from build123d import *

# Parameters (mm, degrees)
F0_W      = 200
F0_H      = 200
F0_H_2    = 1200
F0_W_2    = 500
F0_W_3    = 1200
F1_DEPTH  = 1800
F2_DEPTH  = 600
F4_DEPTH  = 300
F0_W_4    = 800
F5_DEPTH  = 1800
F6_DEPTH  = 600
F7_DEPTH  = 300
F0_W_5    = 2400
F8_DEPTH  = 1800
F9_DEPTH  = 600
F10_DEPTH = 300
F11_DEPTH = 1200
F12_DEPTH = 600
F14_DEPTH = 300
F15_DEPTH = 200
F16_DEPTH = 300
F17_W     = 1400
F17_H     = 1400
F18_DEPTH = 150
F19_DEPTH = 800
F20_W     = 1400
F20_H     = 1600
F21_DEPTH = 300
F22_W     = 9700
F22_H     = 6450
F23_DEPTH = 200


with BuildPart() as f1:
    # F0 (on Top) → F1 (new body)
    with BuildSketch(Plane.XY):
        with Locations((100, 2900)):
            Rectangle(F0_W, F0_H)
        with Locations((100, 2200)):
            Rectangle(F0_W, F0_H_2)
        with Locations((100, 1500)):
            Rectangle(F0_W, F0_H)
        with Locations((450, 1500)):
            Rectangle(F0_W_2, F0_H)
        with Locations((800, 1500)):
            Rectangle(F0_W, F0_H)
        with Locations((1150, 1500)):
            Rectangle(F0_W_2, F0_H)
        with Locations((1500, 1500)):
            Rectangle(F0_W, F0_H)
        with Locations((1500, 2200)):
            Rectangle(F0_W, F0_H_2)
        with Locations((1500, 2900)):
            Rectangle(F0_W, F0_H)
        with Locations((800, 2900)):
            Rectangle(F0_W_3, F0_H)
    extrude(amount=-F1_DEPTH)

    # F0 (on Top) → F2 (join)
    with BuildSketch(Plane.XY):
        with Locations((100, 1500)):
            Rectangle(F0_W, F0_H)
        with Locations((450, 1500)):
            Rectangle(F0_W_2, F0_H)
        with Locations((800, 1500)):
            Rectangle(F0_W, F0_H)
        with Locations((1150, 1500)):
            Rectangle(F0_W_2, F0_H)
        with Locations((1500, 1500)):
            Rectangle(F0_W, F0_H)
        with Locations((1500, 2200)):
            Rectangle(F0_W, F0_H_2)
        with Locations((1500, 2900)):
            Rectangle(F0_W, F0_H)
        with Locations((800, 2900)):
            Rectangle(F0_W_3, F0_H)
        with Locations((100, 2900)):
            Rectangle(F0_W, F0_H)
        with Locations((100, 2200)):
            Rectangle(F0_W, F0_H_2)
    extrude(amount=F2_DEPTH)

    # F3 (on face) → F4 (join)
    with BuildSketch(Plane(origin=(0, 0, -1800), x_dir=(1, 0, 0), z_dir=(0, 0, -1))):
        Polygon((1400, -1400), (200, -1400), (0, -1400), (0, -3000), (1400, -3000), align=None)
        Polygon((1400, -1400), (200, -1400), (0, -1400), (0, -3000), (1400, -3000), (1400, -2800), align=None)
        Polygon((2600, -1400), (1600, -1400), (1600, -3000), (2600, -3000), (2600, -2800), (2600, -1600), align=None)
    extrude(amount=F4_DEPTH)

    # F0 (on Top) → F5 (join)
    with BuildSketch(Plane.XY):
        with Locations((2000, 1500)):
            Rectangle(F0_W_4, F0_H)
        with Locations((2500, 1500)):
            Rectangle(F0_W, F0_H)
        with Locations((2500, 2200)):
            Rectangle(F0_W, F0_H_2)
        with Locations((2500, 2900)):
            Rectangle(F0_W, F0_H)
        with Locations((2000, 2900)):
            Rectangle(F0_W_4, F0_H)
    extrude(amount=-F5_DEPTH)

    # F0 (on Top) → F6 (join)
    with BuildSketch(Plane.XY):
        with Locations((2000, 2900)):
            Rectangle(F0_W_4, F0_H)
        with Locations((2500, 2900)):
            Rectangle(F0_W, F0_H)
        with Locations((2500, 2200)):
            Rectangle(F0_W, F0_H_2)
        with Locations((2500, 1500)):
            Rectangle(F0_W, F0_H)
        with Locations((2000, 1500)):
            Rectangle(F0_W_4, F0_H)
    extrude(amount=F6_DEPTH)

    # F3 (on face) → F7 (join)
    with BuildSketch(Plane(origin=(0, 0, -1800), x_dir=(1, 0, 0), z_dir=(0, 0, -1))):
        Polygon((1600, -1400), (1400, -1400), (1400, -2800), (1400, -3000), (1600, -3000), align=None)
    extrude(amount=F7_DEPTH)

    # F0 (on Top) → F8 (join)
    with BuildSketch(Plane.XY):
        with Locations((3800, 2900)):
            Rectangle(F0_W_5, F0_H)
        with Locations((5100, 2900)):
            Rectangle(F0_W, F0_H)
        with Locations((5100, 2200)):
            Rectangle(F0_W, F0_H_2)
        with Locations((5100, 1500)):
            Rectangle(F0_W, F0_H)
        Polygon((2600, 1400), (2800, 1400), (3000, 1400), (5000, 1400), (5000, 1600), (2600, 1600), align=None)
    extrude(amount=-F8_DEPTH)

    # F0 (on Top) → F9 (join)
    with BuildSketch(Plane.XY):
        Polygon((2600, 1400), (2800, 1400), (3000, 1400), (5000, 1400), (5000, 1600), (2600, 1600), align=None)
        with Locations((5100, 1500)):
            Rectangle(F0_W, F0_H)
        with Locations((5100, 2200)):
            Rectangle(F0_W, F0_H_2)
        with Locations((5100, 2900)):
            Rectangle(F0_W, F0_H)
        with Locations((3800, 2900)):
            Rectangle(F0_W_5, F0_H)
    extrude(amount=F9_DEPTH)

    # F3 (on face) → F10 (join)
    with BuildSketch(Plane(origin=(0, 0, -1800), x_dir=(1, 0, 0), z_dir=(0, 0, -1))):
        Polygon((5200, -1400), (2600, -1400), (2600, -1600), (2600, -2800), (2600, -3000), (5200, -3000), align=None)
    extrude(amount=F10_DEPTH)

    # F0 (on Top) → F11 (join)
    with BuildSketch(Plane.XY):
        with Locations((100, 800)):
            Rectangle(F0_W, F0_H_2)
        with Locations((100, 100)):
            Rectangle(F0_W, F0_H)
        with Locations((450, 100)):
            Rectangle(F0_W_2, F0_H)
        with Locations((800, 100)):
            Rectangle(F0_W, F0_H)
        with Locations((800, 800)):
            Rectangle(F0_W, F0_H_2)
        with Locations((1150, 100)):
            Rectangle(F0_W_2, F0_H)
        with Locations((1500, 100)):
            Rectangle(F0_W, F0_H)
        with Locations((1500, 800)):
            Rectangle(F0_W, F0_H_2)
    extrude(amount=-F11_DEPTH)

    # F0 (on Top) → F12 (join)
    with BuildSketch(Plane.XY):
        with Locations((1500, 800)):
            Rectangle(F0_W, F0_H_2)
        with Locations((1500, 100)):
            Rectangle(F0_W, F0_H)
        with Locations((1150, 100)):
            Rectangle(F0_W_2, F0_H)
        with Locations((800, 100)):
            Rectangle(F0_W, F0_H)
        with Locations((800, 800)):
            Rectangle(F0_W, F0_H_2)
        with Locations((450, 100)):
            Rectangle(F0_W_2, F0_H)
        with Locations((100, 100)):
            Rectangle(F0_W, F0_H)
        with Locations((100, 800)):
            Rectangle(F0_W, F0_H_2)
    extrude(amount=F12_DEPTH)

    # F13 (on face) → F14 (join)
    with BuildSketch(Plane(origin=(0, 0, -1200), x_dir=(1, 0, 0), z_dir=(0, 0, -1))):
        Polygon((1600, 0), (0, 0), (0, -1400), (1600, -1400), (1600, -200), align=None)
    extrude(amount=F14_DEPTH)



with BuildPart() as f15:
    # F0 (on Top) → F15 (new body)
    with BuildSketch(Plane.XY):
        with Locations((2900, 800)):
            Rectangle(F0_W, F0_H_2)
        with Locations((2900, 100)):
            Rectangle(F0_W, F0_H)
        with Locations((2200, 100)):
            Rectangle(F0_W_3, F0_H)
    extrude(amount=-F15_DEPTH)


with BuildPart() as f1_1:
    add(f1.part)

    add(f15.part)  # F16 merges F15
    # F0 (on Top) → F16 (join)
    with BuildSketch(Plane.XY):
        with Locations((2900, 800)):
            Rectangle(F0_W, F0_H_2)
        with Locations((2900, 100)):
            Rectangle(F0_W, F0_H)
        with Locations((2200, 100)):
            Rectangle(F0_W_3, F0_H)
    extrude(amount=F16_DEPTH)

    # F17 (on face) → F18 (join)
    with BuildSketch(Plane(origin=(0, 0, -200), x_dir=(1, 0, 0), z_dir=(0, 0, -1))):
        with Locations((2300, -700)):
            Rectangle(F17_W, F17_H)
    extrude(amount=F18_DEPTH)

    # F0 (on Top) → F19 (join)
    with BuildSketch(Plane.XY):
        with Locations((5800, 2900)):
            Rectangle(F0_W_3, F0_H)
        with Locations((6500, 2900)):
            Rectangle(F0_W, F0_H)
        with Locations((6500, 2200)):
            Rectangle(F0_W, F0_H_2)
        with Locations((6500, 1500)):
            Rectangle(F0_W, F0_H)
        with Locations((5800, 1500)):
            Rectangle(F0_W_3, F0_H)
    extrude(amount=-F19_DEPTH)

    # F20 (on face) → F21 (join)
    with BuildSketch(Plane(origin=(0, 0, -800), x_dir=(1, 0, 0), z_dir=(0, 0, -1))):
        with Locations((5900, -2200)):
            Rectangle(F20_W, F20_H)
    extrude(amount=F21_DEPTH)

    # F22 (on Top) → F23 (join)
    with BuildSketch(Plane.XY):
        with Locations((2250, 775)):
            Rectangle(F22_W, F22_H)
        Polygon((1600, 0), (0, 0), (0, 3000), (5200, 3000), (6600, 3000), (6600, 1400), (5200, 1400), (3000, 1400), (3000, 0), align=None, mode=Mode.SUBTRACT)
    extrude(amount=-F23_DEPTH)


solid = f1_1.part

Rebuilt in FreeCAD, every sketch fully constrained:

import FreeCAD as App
import Part
import Sketcher

V = App.Vector

doc = App.newDocument("Part")
params = doc.addObject("Spreadsheet::Sheet", "Params")
for row, (alias, value) in enumerate([
    ("sketch1_width", "1600 mm"),
    ("sketch1_width2", "1200 mm"),
    ("pad1_length", "1800 mm"),
    ("sketch2_width", "1600 mm"),
    ("sketch2_width2", "1200 mm"),
    ("pad2_length", "600 mm"),
    ("sketch3_width", "1400 mm"),
    ("sketch3_width2", "1000 mm"),
    ("sketch3_height", "1600 mm"),
    ("pad3_length", "300 mm"),
    ("sketch4_width", "1000 mm"),
    ("sketch4_width2", "800 mm"),
    ("sketch4_height", "200 mm"),
    ("sketch4_height2", "1600 mm"),
    ("pad4_length", "1800 mm"),
    ("sketch5_width", "800 mm"),
    ("sketch5_width2", "1000 mm"),
    ("sketch5_height", "200 mm"),
    ("sketch5_height2", "1200 mm"),
    ("pad5_length", "600 mm"),
    ("sketch6_width", "200 mm"),
    ("sketch6_height", "1600 mm"),
    ("pad6_length", "300 mm"),
    ("sketch7_width", "2400 mm"),
    ("sketch7_width2", "2600 mm"),
    ("sketch7_height", "200 mm"),
    ("sketch7_height2", "1200 mm"),
    ("pad7_length", "1800 mm"),
    ("sketch8_width", "2600 mm"),
    ("sketch8_width2", "2400 mm"),
    ("sketch8_height", "1600 mm"),
    ("sketch8_height2", "200 mm"),
    ("pad8_length", "600 mm"),
    ("sketch9_width", "2600 mm"),
    ("sketch9_height", "1600 mm"),
    ("pad9_length", "300 mm"),
    ("sketch10_width", "1600 mm"),
    ("sketch10_width2", "200 mm"),
    ("sketch10_height", "1400 mm"),
    ("sketch10_height2", "1200 mm"),
    ("pad10_length", "1200 mm"),
    ("sketch11_width", "500 mm"),
    ("sketch11_width2", "200 mm"),
    ("sketch11_height", "1200 mm"),
    ("sketch11_height2", "1400 mm"),
    ("pad11_length", "600 mm"),
    ("sketch12_width", "1600 mm"),
    ("sketch12_height", "1400 mm"),
    ("pad12_length", "300 mm"),
    ("sketch13_width", "1200 mm"),
    ("sketch13_width2", "1400 mm"),
    ("pad13_length", "200 mm"),
    ("sketch14_width", "1200 mm"),
    ("sketch14_width2", "1400 mm"),
    ("pad14_length", "300 mm"),
    ("sketch15_width", "1400 mm"),
    ("pad15_length", "150 mm"),
    ("sketch16_width", "1200 mm"),
    ("sketch16_width2", "1400 mm"),
    ("sketch16_height", "200 mm"),
    ("pad16_length", "800 mm"),
    ("sketch17_width", "1400 mm"),
    ("sketch17_height", "1600 mm"),
    ("pad17_length", "300 mm"),
    ("sketch18_width", "9700 mm"),
    ("sketch18_width2", "3000 mm"),
    ("sketch18_width3", "6600 mm"),
    ("sketch18_height", "6450 mm"),
    ("sketch18_height2", "1600 mm"),
    ("pad18_length", "200 mm"),
], start=1):
    params.set(f"A{row}", alias)
    params.set(f"B{row}", "=" + value)
    params.setAlias(f"B{row}", alias)

body = doc.addObject("PartDesign::Body", "Body")
body.AllowCompound = True

sketch1 = body.newObject("Sketcher::SketchObject", "Sketch")
sketch1.AttachmentSupport = (doc.getObject("XY_Plane"), [""])
sketch1.MapMode = "FlatFace"
sketch1.addGeometry([
    Part.LineSegment(V(0, 3000, 0), V(0, 1400, 0)),
    Part.LineSegment(V(0, 1400, 0), V(1600, 1400, 0)),
    Part.LineSegment(V(1600, 1400, 0), V(1600, 3000, 0)),
    Part.LineSegment(V(1600, 3000, 0), V(0, 3000, 0)),
    Part.LineSegment(V(1400, 2800, 0), V(1400, 1600, 0)),
    Part.LineSegment(V(1400, 1600, 0), V(200, 1600, 0)),
    Part.LineSegment(V(200, 1600, 0), V(200, 2800, 0)),
    Part.LineSegment(V(200, 2800, 0), V(1400, 2800, 0)),
], False)
sketch1.addConstraint([
    Sketcher.Constraint("Coincident", 0, 2, 1, 1),
    Sketcher.Constraint("Coincident", 1, 2, 2, 1),
    Sketcher.Constraint("Coincident", 2, 2, 3, 1),
    Sketcher.Constraint("Coincident", 3, 2, 0, 1),
    Sketcher.Constraint("Coincident", 4, 2, 5, 1),
    Sketcher.Constraint("Coincident", 5, 2, 6, 1),
    Sketcher.Constraint("Coincident", 6, 2, 7, 1),
    Sketcher.Constraint("Coincident", 7, 2, 4, 1),
    Sketcher.Constraint("Vertical", 0),
    Sketcher.Constraint("Horizontal", 1),
    Sketcher.Constraint("Vertical", 2),
    Sketcher.Constraint("Horizontal", 3),
    Sketcher.Constraint("Vertical", 4),
    Sketcher.Constraint("Horizontal", 5),
    Sketcher.Constraint("Vertical", 6),
    Sketcher.Constraint("Horizontal", 7),
    Sketcher.Constraint("PointOnObject", 0, 2, -2),
    Sketcher.Constraint("Equal", 3, 0),
    Sketcher.Constraint("Equal", 7, 4),
    Sketcher.Constraint("DistanceX", 1, 1, 1, 2, 1600.0),
    Sketcher.Constraint("DistanceX", 5, 2, 5, 1, 1200.0),
    Sketcher.Constraint("DistanceY", -1, 1, 0, 2, 1400.0),
    Sketcher.Constraint("DistanceX", -1, 1, 4, 2, 1400.0),
    Sketcher.Constraint("DistanceY", -1, 1, 4, 2, 1600.0),
])
sketch1.setExpression("Constraints[19]", "Params.sketch1_width")
sketch1.setExpression("Constraints[20]", "Params.sketch1_width2")
pad1 = body.newObject("PartDesign::Pad", "Pad")
pad1.Profile = sketch1
pad1.setExpression("Length", "Params.pad1_length")
pad1.Reversed = True

sketch2 = body.newObject("Sketcher::SketchObject", "Sketch001")
sketch2.AttachmentSupport = (doc.getObject("XY_Plane"), [""])
sketch2.MapMode = "FlatFace"
sketch2.addGeometry([
    Part.LineSegment(V(0, 1400, 0), V(1600, 1400, 0)),
    Part.LineSegment(V(1600, 1400, 0), V(1600, 3000, 0)),
    Part.LineSegment(V(1600, 3000, 0), V(0, 3000, 0)),
    Part.LineSegment(V(0, 3000, 0), V(0, 1400, 0)),
    Part.LineSegment(V(200, 2800, 0), V(1400, 2800, 0)),
    Part.LineSegment(V(1400, 2800, 0), V(1400, 1600, 0)),
    Part.LineSegment(V(1400, 1600, 0), V(200, 1600, 0)),
    Part.LineSegment(V(200, 1600, 0), V(200, 2800, 0)),
], False)
sketch2.addConstraint([
    Sketcher.Constraint("Coincident", 0, 2, 1, 1),
    Sketcher.Constraint("Coincident", 1, 2, 2, 1),
    Sketcher.Constraint("Coincident", 2, 2, 3, 1),
    Sketcher.Constraint("Coincident", 3, 2, 0, 1),
    Sketcher.Constraint("Coincident", 4, 2, 5, 1),
    Sketcher.Constraint("Coincident", 5, 2, 6, 1),
    Sketcher.Constraint("Coincident", 6, 2, 7, 1),
    Sketcher.Constraint("Coincident", 7, 2, 4, 1),
    Sketcher.Constraint("Horizontal", 0),
    Sketcher.Constraint("Vertical", 1),
    Sketcher.Constraint("Horizontal", 2),
    Sketcher.Constraint("Vertical", 3),
    Sketcher.Constraint("Horizontal", 4),
    Sketcher.Constraint("Vertical", 5),
    Sketcher.Constraint("Horizontal", 6),
    Sketcher.Constraint("Vertical", 7),
    Sketcher.Constraint("PointOnObject", 2, 2, -2),
    Sketcher.Constraint("Equal", 2, 1),
    Sketcher.Constraint("Equal", 6, 5),
    Sketcher.Constraint("DistanceX", 0, 1, 0, 2, 1600.0),
    Sketcher.Constraint("DistanceX", 4, 1, 4, 2, 1200.0),
    Sketcher.Constraint("DistanceY", -1, 1, 0, 2, 1400.0),
    Sketcher.Constraint("DistanceX", -1, 1, 4, 2, 1400.0),
    Sketcher.Constraint("DistanceY", -1, 1, 4, 2, 2800.0),
])
sketch2.setExpression("Constraints[19]", "Params.sketch2_width")
sketch2.setExpression("Constraints[20]", "Params.sketch2_width2")
pad2 = body.newObject("PartDesign::Pad", "Pad001")
pad2.Profile = sketch2
pad2.setExpression("Length", "Params.pad2_length")

sketch3 = body.newObject("Sketcher::SketchObject", "Sketch002")
sketch3.AttachmentSupport = (doc.getObject("XY_Plane"), [""])
sketch3.MapMode = "FlatFace"
sketch3.AttachmentOffset = App.Placement(V(0, 0, -1800), App.Rotation())
sketch3.addGeometry([
    Part.LineSegment(V(1400, 1400, 0), V(0, 1400, 0)),
    Part.LineSegment(V(0, 1400, 0), V(0, 3000, 0)),
    Part.LineSegment(V(0, 3000, 0), V(1400, 3000, 0)),
    Part.LineSegment(V(1400, 3000, 0), V(1400, 1400, 0)),
    Part.LineSegment(V(2600, 1400, 0), V(1600, 1400, 0)),
    Part.LineSegment(V(1600, 1400, 0), V(1600, 3000, 0)),
    Part.LineSegment(V(1600, 3000, 0), V(2600, 3000, 0)),
    Part.LineSegment(V(2600, 3000, 0), V(2600, 1400, 0)),
], False)
sketch3.addConstraint([
    Sketcher.Constraint("Coincident", 0, 2, 1, 1),
    Sketcher.Constraint("Coincident", 1, 2, 2, 1),
    Sketcher.Constraint("Coincident", 2, 2, 3, 1),
    Sketcher.Constraint("Coincident", 3, 2, 0, 1),
    Sketcher.Constraint("Coincident", 4, 2, 5, 1),
    Sketcher.Constraint("Coincident", 5, 2, 6, 1),
    Sketcher.Constraint("Coincident", 6, 2, 7, 1),
    Sketcher.Constraint("Coincident", 7, 2, 4, 1),
    Sketcher.Constraint("Horizontal", 0),
    Sketcher.Constraint("Vertical", 1),
    Sketcher.Constraint("Horizontal", 2),
    Sketcher.Constraint("Vertical", 3),
    Sketcher.Constraint("Horizontal", 4),
    Sketcher.Constraint("Vertical", 5),
    Sketcher.Constraint("Horizontal", 6),
    Sketcher.Constraint("Vertical", 7),
    Sketcher.Constraint("PointOnObject", 0, 2, -2),
    Sketcher.Constraint("Horizontal", 3, 2, 4, 2),
    Sketcher.Constraint("Horizontal", 2, 2, 5, 2),
    Sketcher.Constraint("DistanceX", 0, 2, 0, 1, 1400.0),
    Sketcher.Constraint("DistanceX", 4, 2, 4, 1, 1000.0),
    Sketcher.Constraint("DistanceY", 1, 1, 1, 2, 1600.0),
    Sketcher.Constraint("DistanceY", -1, 1, 0, 2, 1400.0),
    Sketcher.Constraint("DistanceX", -1, 1, 4, 2, 1600.0),
])
sketch3.setExpression("Constraints[19]", "Params.sketch3_width")
sketch3.setExpression("Constraints[20]", "Params.sketch3_width2")
sketch3.setExpression("Constraints[21]", "Params.sketch3_height")
pad3 = body.newObject("PartDesign::Pad", "Pad002")
pad3.Profile = sketch3
pad3.setExpression("Length", "Params.pad3_length")
pad3.Reversed = True

sketch4 = body.newObject("Sketcher::SketchObject", "Sketch003")
sketch4.AttachmentSupport = (doc.getObject("XY_Plane"), [""])
sketch4.MapMode = "FlatFace"
sketch4.addGeometry([
    Part.LineSegment(V(1600, 1600, 0), V(1600, 1400, 0)),
    Part.LineSegment(V(1600, 1400, 0), V(2600, 1400, 0)),
    Part.LineSegment(V(2600, 1400, 0), V(2600, 3000, 0)),
    Part.LineSegment(V(2600, 3000, 0), V(1600, 3000, 0)),
    Part.LineSegment(V(1600, 3000, 0), V(1600, 2800, 0)),
    Part.LineSegment(V(1600, 2800, 0), V(2400, 2800, 0)),
    Part.LineSegment(V(2400, 2800, 0), V(2400, 1600, 0)),
    Part.LineSegment(V(2400, 1600, 0), V(1600, 1600, 0)),
], False)
sketch4.addConstraint([
    Sketcher.Constraint("Coincident", 0, 2, 1, 1),
    Sketcher.Constraint("Coincident", 1, 2, 2, 1),
    Sketcher.Constraint("Coincident", 2, 2, 3, 1),
    Sketcher.Constraint("Coincident", 3, 2, 4, 1),
    Sketcher.Constraint("Coincident", 4, 2, 5, 1),
    Sketcher.Constraint("Coincident", 5, 2, 6, 1),
    Sketcher.Constraint("Coincident", 6, 2, 7, 1),
    Sketcher.Constraint("Coincident", 7, 2, 0, 1),
    Sketcher.Constraint("Vertical", 0),
    Sketcher.Constraint("Horizontal", 1),
    Sketcher.Constraint("Vertical", 2),
    Sketcher.Constraint("Horizontal", 3),
    Sketcher.Constraint("Vertical", 4),
    Sketcher.Constraint("Horizontal", 5),
    Sketcher.Constraint("Vertical", 6),
    Sketcher.Constraint("Horizontal", 7),
    Sketcher.Constraint("Vertical", 0, 2, 3, 2),
    Sketcher.Constraint("Equal", 0, 4),
    Sketcher.Constraint("DistanceX", 1, 1, 1, 2, 1000.0),
    Sketcher.Constraint("DistanceX", 5, 1, 5, 2, 800.0),
    Sketcher.Constraint("DistanceY", 0, 2, 0, 1, 200.0),
    Sketcher.Constraint("DistanceY", 2, 1, 2, 2, 1600.0),
    Sketcher.Constraint("DistanceX", -1, 1, 0, 2, 1600.0),
    Sketcher.Constraint("DistanceY", -1, 1, 0, 2, 1400.0),
])
sketch4.setExpression("Constraints[18]", "Params.sketch4_width")
sketch4.setExpression("Constraints[19]", "Params.sketch4_width2")
sketch4.setExpression("Constraints[20]", "Params.sketch4_height")
sketch4.setExpression("Constraints[21]", "Params.sketch4_height2")
pad4 = body.newObject("PartDesign::Pad", "Pad003")
pad4.Profile = sketch4
pad4.setExpression("Length", "Params.pad4_length")
pad4.Reversed = True

sketch5 = body.newObject("Sketcher::SketchObject", "Sketch004")
sketch5.AttachmentSupport = (doc.getObject("XY_Plane"), [""])
sketch5.MapMode = "FlatFace"
sketch5.addGeometry([
    Part.LineSegment(V(1600, 3000, 0), V(1600, 2800, 0)),
    Part.LineSegment(V(1600, 2800, 0), V(2400, 2800, 0)),
    Part.LineSegment(V(2400, 2800, 0), V(2400, 1600, 0)),
    Part.LineSegment(V(2400, 1600, 0), V(1600, 1600, 0)),
    Part.LineSegment(V(1600, 1600, 0), V(1600, 1400, 0)),
    Part.LineSegment(V(1600, 1400, 0), V(2600, 1400, 0)),
    Part.LineSegment(V(2600, 1400, 0), V(2600, 3000, 0)),
    Part.LineSegment(V(2600, 3000, 0), V(1600, 3000, 0)),
], False)
sketch5.addConstraint([
    Sketcher.Constraint("Coincident", 0, 2, 1, 1),
    Sketcher.Constraint("Coincident", 1, 2, 2, 1),
    Sketcher.Constraint("Coincident", 2, 2, 3, 1),
    Sketcher.Constraint("Coincident", 3, 2, 4, 1),
    Sketcher.Constraint("Coincident", 4, 2, 5, 1),
    Sketcher.Constraint("Coincident", 5, 2, 6, 1),
    Sketcher.Constraint("Coincident", 6, 2, 7, 1),
    Sketcher.Constraint("Coincident", 7, 2, 0, 1),
    Sketcher.Constraint("Vertical", 0),
    Sketcher.Constraint("Horizontal", 1),
    Sketcher.Constraint("Vertical", 2),
    Sketcher.Constraint("Horizontal", 3),
    Sketcher.Constraint("Vertical", 4),
    Sketcher.Constraint("Horizontal", 5),
    Sketcher.Constraint("Vertical", 6),
    Sketcher.Constraint("Horizontal", 7),
    Sketcher.Constraint("Vertical", 0, 2, 3, 2),
    Sketcher.Constraint("Equal", 0, 4),
    Sketcher.Constraint("DistanceX", 1, 1, 1, 2, 800.0),
    Sketcher.Constraint("DistanceX", 5, 1, 5, 2, 1000.0),
    Sketcher.Constraint("DistanceY", 0, 2, 0, 1, 200.0),
    Sketcher.Constraint("DistanceY", 2, 2, 2, 1, 1200.0),
    Sketcher.Constraint("DistanceX", -1, 1, 0, 2, 1600.0),
    Sketcher.Constraint("DistanceY", -1, 1, 0, 2, 2800.0),
])
sketch5.setExpression("Constraints[18]", "Params.sketch5_width")
sketch5.setExpression("Constraints[19]", "Params.sketch5_width2")
sketch5.setExpression("Constraints[20]", "Params.sketch5_height")
sketch5.setExpression("Constraints[21]", "Params.sketch5_height2")
pad5 = body.newObject("PartDesign::Pad", "Pad004")
pad5.Profile = sketch5
pad5.setExpression("Length", "Params.pad5_length")

sketch6 = body.newObject("Sketcher::SketchObject", "Sketch005")
sketch6.AttachmentSupport = (doc.getObject("XY_Plane"), [""])
sketch6.MapMode = "FlatFace"
sketch6.AttachmentOffset = App.Placement(V(0, 0, -1800), App.Rotation())
sketch6.addGeometry([
    Part.LineSegment(V(1600, 1400, 0), V(1400, 1400, 0)),
    Part.LineSegment(V(1400, 1400, 0), V(1400, 3000, 0)),
    Part.LineSegment(V(1400, 3000, 0), V(1600, 3000, 0)),
    Part.LineSegment(V(1600, 3000, 0), V(1600, 1400, 0)),
], False)
sketch6.addConstraint([
    Sketcher.Constraint("Coincident", 0, 2, 1, 1),
    Sketcher.Constraint("Coincident", 1, 2, 2, 1),
    Sketcher.Constraint("Coincident", 2, 2, 3, 1),
    Sketcher.Constraint("Coincident", 3, 2, 0, 1),
    Sketcher.Constraint("Horizontal", 0),
    Sketcher.Constraint("Vertical", 1),
    Sketcher.Constraint("Horizontal", 2),
    Sketcher.Constraint("Vertical", 3),
    Sketcher.Constraint("DistanceX", 0, 2, 0, 1, 200.0),
    Sketcher.Constraint("DistanceY", 1, 1, 1, 2, 1600.0),
    Sketcher.Constraint("DistanceX", -1, 1, 0, 2, 1400.0),
    Sketcher.Constraint("DistanceY", -1, 1, 0, 2, 1400.0),
])
sketch6.setExpression("Constraints[8]", "Params.sketch6_width")
sketch6.setExpression("Constraints[9]", "Params.sketch6_height")
pad6 = body.newObject("PartDesign::Pad", "Pad005")
pad6.Profile = sketch6
pad6.setExpression("Length", "Params.pad6_length")
pad6.Reversed = True

sketch7 = body.newObject("Sketcher::SketchObject", "Sketch006")
sketch7.AttachmentSupport = (doc.getObject("XY_Plane"), [""])
sketch7.MapMode = "FlatFace"
sketch7.addGeometry([
    Part.LineSegment(V(2600, 3000, 0), V(2600, 2800, 0)),
    Part.LineSegment(V(2600, 2800, 0), V(5000, 2800, 0)),
    Part.LineSegment(V(5000, 2800, 0), V(5000, 1600, 0)),
    Part.LineSegment(V(5000, 1600, 0), V(2600, 1600, 0)),
    Part.LineSegment(V(2600, 1600, 0), V(2600, 1400, 0)),
    Part.LineSegment(V(2600, 1400, 0), V(5200, 1400, 0)),
    Part.LineSegment(V(5200, 1400, 0), V(5200, 3000, 0)),
    Part.LineSegment(V(5200, 3000, 0), V(2600, 3000, 0)),
], False)
sketch7.addConstraint([
    Sketcher.Constraint("Coincident", 0, 2, 1, 1),
    Sketcher.Constraint("Coincident", 1, 2, 2, 1),
    Sketcher.Constraint("Coincident", 2, 2, 3, 1),
    Sketcher.Constraint("Coincident", 3, 2, 4, 1),
    Sketcher.Constraint("Coincident", 4, 2, 5, 1),
    Sketcher.Constraint("Coincident", 5, 2, 6, 1),
    Sketcher.Constraint("Coincident", 6, 2, 7, 1),
    Sketcher.Constraint("Coincident", 7, 2, 0, 1),
    Sketcher.Constraint("Vertical", 0),
    Sketcher.Constraint("Horizontal", 1),
    Sketcher.Constraint("Vertical", 2),
    Sketcher.Constraint("Horizontal", 3),
    Sketcher.Constraint("Vertical", 4),
    Sketcher.Constraint("Horizontal", 5),
    Sketcher.Constraint("Vertical", 6),
    Sketcher.Constraint("Horizontal", 7),
    Sketcher.Constraint("Vertical", 0, 2, 3, 2),
    Sketcher.Constraint("Equal", 0, 4),
    Sketcher.Constraint("DistanceX", 1, 1, 1, 2, 2400.0),
    Sketcher.Constraint("DistanceX", 5, 1, 5, 2, 2600.0),
    Sketcher.Constraint("DistanceY", 0, 2, 0, 1, 200.0),
    Sketcher.Constraint("DistanceY", 2, 2, 2, 1, 1200.0),
    Sketcher.Constraint("DistanceX", -1, 1, 0, 2, 2600.0),
    Sketcher.Constraint("DistanceY", -1, 1, 0, 2, 2800.0),
])
sketch7.setExpression("Constraints[18]", "Params.sketch7_width")
sketch7.setExpression("Constraints[19]", "Params.sketch7_width2")
sketch7.setExpression("Constraints[20]", "Params.sketch7_height")
sketch7.setExpression("Constraints[21]", "Params.sketch7_height2")
pad7 = body.newObject("PartDesign::Pad", "Pad006")
pad7.Profile = sketch7
pad7.setExpression("Length", "Params.pad7_length")
pad7.Reversed = True

sketch8 = body.newObject("Sketcher::SketchObject", "Sketch007")
sketch8.AttachmentSupport = (doc.getObject("XY_Plane"), [""])
sketch8.MapMode = "FlatFace"
sketch8.addGeometry([
    Part.LineSegment(V(2600, 1400, 0), V(5200, 1400, 0)),
    Part.LineSegment(V(5200, 1400, 0), V(5200, 3000, 0)),
    Part.LineSegment(V(5200, 3000, 0), V(2600, 3000, 0)),
    Part.LineSegment(V(2600, 3000, 0), V(2600, 2800, 0)),
    Part.LineSegment(V(2600, 2800, 0), V(5000, 2800, 0)),
    Part.LineSegment(V(5000, 2800, 0), V(5000, 1600, 0)),
    Part.LineSegment(V(5000, 1600, 0), V(2600, 1600, 0)),
    Part.LineSegment(V(2600, 1600, 0), V(2600, 1400, 0)),
], False)
sketch8.addConstraint([
    Sketcher.Constraint("Coincident", 0, 2, 1, 1),
    Sketcher.Constraint("Coincident", 1, 2, 2, 1),
    Sketcher.Constraint("Coincident", 2, 2, 3, 1),
    Sketcher.Constraint("Coincident", 3, 2, 4, 1),
    Sketcher.Constraint("Coincident", 4, 2, 5, 1),
    Sketcher.Constraint("Coincident", 5, 2, 6, 1),
    Sketcher.Constraint("Coincident", 6, 2, 7, 1),
    Sketcher.Constraint("Coincident", 7, 2, 0, 1),
    Sketcher.Constraint("Horizontal", 0),
    Sketcher.Constraint("Vertical", 1),
    Sketcher.Constraint("Horizontal", 2),
    Sketcher.Constraint("Vertical", 3),
    Sketcher.Constraint("Horizontal", 4),
    Sketcher.Constraint("Vertical", 5),
    Sketcher.Constraint("Horizontal", 6),
    Sketcher.Constraint("Vertical", 7),
    Sketcher.Constraint("Vertical", 3, 2, 6, 2),
    Sketcher.Constraint("Equal", 3, 7),
    Sketcher.Constraint("DistanceX", 0, 1, 0, 2, 2600.0),
    Sketcher.Constraint("DistanceX", 4, 1, 4, 2, 2400.0),
    Sketcher.Constraint("DistanceY", 1, 1, 1, 2, 1600.0),
    Sketcher.Constraint("DistanceY", 3, 2, 3, 1, 200.0),
    Sketcher.Constraint("DistanceX", -1, 1, 0, 2, 5200.0),
    Sketcher.Constraint("DistanceY", -1, 1, 0, 2, 1400.0),
])
sketch8.setExpression("Constraints[18]", "Params.sketch8_width")
sketch8.setExpression("Constraints[19]", "Params.sketch8_width2")
sketch8.setExpression("Constraints[20]", "Params.sketch8_height")
sketch8.setExpression("Constraints[21]", "Params.sketch8_height2")
pad8 = body.newObject("PartDesign::Pad", "Pad007")
pad8.Profile = sketch8
pad8.setExpression("Length", "Params.pad8_length")

sketch9 = body.newObject("Sketcher::SketchObject", "Sketch008")
sketch9.AttachmentSupport = (doc.getObject("XY_Plane"), [""])
sketch9.MapMode = "FlatFace"
sketch9.AttachmentOffset = App.Placement(V(0, 0, -1800), App.Rotation())
sketch9.addGeometry([
    Part.LineSegment(V(5200, 1400, 0), V(2600, 1400, 0)),
    Part.LineSegment(V(2600, 1400, 0), V(2600, 3000, 0)),
    Part.LineSegment(V(2600, 3000, 0), V(5200, 3000, 0)),
    Part.LineSegment(V(5200, 3000, 0), V(5200, 1400, 0)),
], False)
sketch9.addConstraint([
    Sketcher.Constraint("Coincident", 0, 2, 1, 1),
    Sketcher.Constraint("Coincident", 1, 2, 2, 1),
    Sketcher.Constraint("Coincident", 2, 2, 3, 1),
    Sketcher.Constraint("Coincident", 3, 2, 0, 1),
    Sketcher.Constraint("Horizontal", 0),
    Sketcher.Constraint("Vertical", 1),
    Sketcher.Constraint("Horizontal", 2),
    Sketcher.Constraint("Vertical", 3),
    Sketcher.Constraint("DistanceX", 0, 2, 0, 1, 2600.0),
    Sketcher.Constraint("DistanceY", 1, 1, 1, 2, 1600.0),
    Sketcher.Constraint("DistanceX", -1, 1, 0, 2, 2600.0),
    Sketcher.Constraint("DistanceY", -1, 1, 0, 2, 1400.0),
])
sketch9.setExpression("Constraints[8]", "Params.sketch9_width")
sketch9.setExpression("Constraints[9]", "Params.sketch9_height")
pad9 = body.newObject("PartDesign::Pad", "Pad008")
pad9.Profile = sketch9
pad9.setExpression("Length", "Params.pad9_length")
pad9.Reversed = True

sketch10 = body.newObject("Sketcher::SketchObject", "Sketch009")
sketch10.AttachmentSupport = (doc.getObject("XY_Plane"), [""])
sketch10.MapMode = "FlatFace"
sketch10.addGeometry([
    Part.LineSegment(V(0, 1400, 0), V(0, 0, 0)),
    Part.LineSegment(V(0, 0, 0), V(1600, 0, 0)),
    Part.LineSegment(V(1600, 0, 0), V(1600, 1400, 0)),
    Part.LineSegment(V(1600, 1400, 0), V(1400, 1400, 0)),
    Part.LineSegment(V(1400, 1400, 0), V(1400, 200, 0)),
    Part.LineSegment(V(1400, 200, 0), V(900, 200, 0)),
    Part.LineSegment(V(900, 200, 0), V(900, 1400, 0)),
    Part.LineSegment(V(900, 1400, 0), V(700, 1400, 0)),
    Part.LineSegment(V(700, 1400, 0), V(700, 200, 0)),
    Part.LineSegment(V(700, 200, 0), V(200, 200, 0)),
    Part.LineSegment(V(200, 200, 0), V(200, 1400, 0)),
    Part.LineSegment(V(200, 1400, 0), V(0, 1400, 0)),
], False)
sketch10.addConstraint([
    Sketcher.Constraint("Coincident", 0, 2, 1, 1),
    Sketcher.Constraint("Coincident", 1, 2, 2, 1),
    Sketcher.Constraint("Coincident", 2, 2, 3, 1),
    Sketcher.Constraint("Coincident", 3, 2, 4, 1),
    Sketcher.Constraint("Coincident", 4, 2, 5, 1),
    Sketcher.Constraint("Coincident", 5, 2, 6, 1),
    Sketcher.Constraint("Coincident", 6, 2, 7, 1),
    Sketcher.Constraint("Coincident", 7, 2, 8, 1),
    Sketcher.Constraint("Coincident", 8, 2, 9, 1),
    Sketcher.Constraint("Coincident", 9, 2, 10, 1),
    Sketcher.Constraint("Coincident", 10, 2, 11, 1),
    Sketcher.Constraint("Coincident", 11, 2, 0, 1),
    Sketcher.Constraint("Vertical", 0),
    Sketcher.Constraint("Horizontal", 1),
    Sketcher.Constraint("Vertical", 2),
    Sketcher.Constraint("Horizontal", 3),
    Sketcher.Constraint("Vertical", 4),
    Sketcher.Constraint("Horizontal", 5),
    Sketcher.Constraint("Vertical", 6),
    Sketcher.Constraint("Horizontal", 7),
    Sketcher.Constraint("Vertical", 8),
    Sketcher.Constraint("Horizontal", 9),
    Sketcher.Constraint("Vertical", 10),
    Sketcher.Constraint("Horizontal", 11),
    Sketcher.Constraint("Coincident", 0, 2, -1, 1),
    Sketcher.Constraint("Horizontal", 3, 2, 6, 2),
    Sketcher.Constraint("Horizontal", 5, 2, 8, 2),
    Sketcher.Constraint("Horizontal", 7, 2, 10, 2),
    Sketcher.Constraint("Equal", 3, 7),
    Sketcher.Constraint("Equal", 5, 9),
    Sketcher.Constraint("Equal", 7, 11),
    Sketcher.Constraint("DistanceX", 1, 1, 1, 2, 1600.0),
    Sketcher.Constraint("DistanceX", 3, 2, 3, 1, 200.0),
    Sketcher.Constraint("DistanceY", 0, 2, 0, 1, 1400.0),
    Sketcher.Constraint("DistanceY", 4, 2, 4, 1, 1200.0),
])
sketch10.setExpression("Constraints[31]", "Params.sketch10_width")
sketch10.setExpression("Constraints[32]", "Params.sketch10_width2")
sketch10.setExpression("Constraints[33]", "Params.sketch10_height")
sketch10.setExpression("Constraints[34]", "Params.sketch10_height2")
pad10 = body.newObject("PartDesign::Pad", "Pad009")
pad10.Profile = sketch10
pad10.setExpression("Length", "Params.pad10_length")
pad10.Reversed = True

sketch11 = body.newObject("Sketcher::SketchObject", "Sketch010")
sketch11.AttachmentSupport = (doc.getObject("XY_Plane"), [""])
sketch11.MapMode = "FlatFace"
sketch11.addGeometry([
    Part.LineSegment(V(1400, 1400, 0), V(1400, 200, 0)),
    Part.LineSegment(V(1400, 200, 0), V(900, 200, 0)),
    Part.LineSegment(V(900, 200, 0), V(900, 1400, 0)),
    Part.LineSegment(V(900, 1400, 0), V(700, 1400, 0)),
    Part.LineSegment(V(700, 1400, 0), V(700, 200, 0)),
    Part.LineSegment(V(700, 200, 0), V(200, 200, 0)),
    Part.LineSegment(V(200, 200, 0), V(200, 1400, 0)),
    Part.LineSegment(V(200, 1400, 0), V(0, 1400, 0)),
    Part.LineSegment(V(0, 1400, 0), V(0, 0, 0)),
    Part.LineSegment(V(0, 0, 0), V(1600, 0, 0)),
    Part.LineSegment(V(1600, 0, 0), V(1600, 1400, 0)),
    Part.LineSegment(V(1600, 1400, 0), V(1400, 1400, 0)),
], False)
sketch11.addConstraint([
    Sketcher.Constraint("Coincident", 0, 2, 1, 1),
    Sketcher.Constraint("Coincident", 1, 2, 2, 1),
    Sketcher.Constraint("Coincident", 2, 2, 3, 1),
    Sketcher.Constraint("Coincident", 3, 2, 4, 1),
    Sketcher.Constraint("Coincident", 4, 2, 5, 1),
    Sketcher.Constraint("Coincident", 5, 2, 6, 1),
    Sketcher.Constraint("Coincident", 6, 2, 7, 1),
    Sketcher.Constraint("Coincident", 7, 2, 8, 1),
    Sketcher.Constraint("Coincident", 8, 2, 9, 1),
    Sketcher.Constraint("Coincident", 9, 2, 10, 1),
    Sketcher.Constraint("Coincident", 10, 2, 11, 1),
    Sketcher.Constraint("Coincident", 11, 2, 0, 1),
    Sketcher.Constraint("Vertical", 0),
    Sketcher.Constraint("Horizontal", 1),
    Sketcher.Constraint("Vertical", 2),
    Sketcher.Constraint("Horizontal", 3),
    Sketcher.Constraint("Vertical", 4),
    Sketcher.Constraint("Horizontal", 5),
    Sketcher.Constraint("Vertical", 6),
    Sketcher.Constraint("Horizontal", 7),
    Sketcher.Constraint("Vertical", 8),
    Sketcher.Constraint("Horizontal", 9),
    Sketcher.Constraint("Vertical", 10),
    Sketcher.Constraint("Horizontal", 11),
    Sketcher.Constraint("Coincident", 8, 2, -1, 1),
    Sketcher.Constraint("Horizontal", 1, 2, 4, 2),
    Sketcher.Constraint("Horizontal", 3, 2, 6, 2),
    Sketcher.Constraint("Horizontal", 7, 2, 10, 2),
    Sketcher.Constraint("Equal", 1, 5),
    Sketcher.Constraint("Equal", 3, 7),
    Sketcher.Constraint("Equal", 7, 11),
    Sketcher.Constraint("DistanceX", 1, 2, 1, 1, 500.0),
    Sketcher.Constraint("DistanceX", 3, 2, 3, 1, 200.0),
    Sketcher.Constraint("DistanceY", 0, 2, 0, 1, 1200.0),
    Sketcher.Constraint("DistanceY", 8, 2, 8, 1, 1400.0),
])
sketch11.setExpression("Constraints[31]", "Params.sketch11_width")
sketch11.setExpression("Constraints[32]", "Params.sketch11_width2")
sketch11.setExpression("Constraints[33]", "Params.sketch11_height")
sketch11.setExpression("Constraints[34]", "Params.sketch11_height2")
pad11 = body.newObject("PartDesign::Pad", "Pad010")
pad11.Profile = sketch11
pad11.setExpression("Length", "Params.pad11_length")

sketch12 = body.newObject("Sketcher::SketchObject", "Sketch011")
sketch12.AttachmentSupport = (doc.getObject("XY_Plane"), [""])
sketch12.MapMode = "FlatFace"
sketch12.AttachmentOffset = App.Placement(V(0, 0, -1200), App.Rotation())
sketch12.addGeometry([
    Part.LineSegment(V(1600, 0, 0), V(0, 0, 0)),
    Part.LineSegment(V(0, 0, 0), V(0, 1400, 0)),
    Part.LineSegment(V(0, 1400, 0), V(1600, 1400, 0)),
    Part.LineSegment(V(1600, 1400, 0), V(1600, 0, 0)),
], False)
sketch12.addConstraint([
    Sketcher.Constraint("Coincident", 0, 2, 1, 1),
    Sketcher.Constraint("Coincident", 1, 2, 2, 1),
    Sketcher.Constraint("Coincident", 2, 2, 3, 1),
    Sketcher.Constraint("Coincident", 3, 2, 0, 1),
    Sketcher.Constraint("Horizontal", 0),
    Sketcher.Constraint("Vertical", 1),
    Sketcher.Constraint("Horizontal", 2),
    Sketcher.Constraint("Vertical", 3),
    Sketcher.Constraint("Coincident", 0, 2, -1, 1),
    Sketcher.Constraint("DistanceX", 0, 2, 0, 1, 1600.0),
    Sketcher.Constraint("DistanceY", 1, 1, 1, 2, 1400.0),
])
sketch12.setExpression("Constraints[9]", "Params.sketch12_width")
sketch12.setExpression("Constraints[10]", "Params.sketch12_height")
pad12 = body.newObject("PartDesign::Pad", "Pad011")
pad12.Profile = sketch12
pad12.setExpression("Length", "Params.pad12_length")
pad12.Reversed = True
body2 = doc.addObject("PartDesign::Body", "Body001")

sketch13 = body2.newObject("Sketcher::SketchObject", "Sketch012")
sketch13.AttachmentSupport = (doc.getObject("XY_Plane001"), [""])
sketch13.MapMode = "FlatFace"
sketch13.addGeometry([
    Part.LineSegment(V(2800, 1400, 0), V(2800, 200, 0)),
    Part.LineSegment(V(2800, 200, 0), V(1600, 200, 0)),
    Part.LineSegment(V(1600, 200, 0), V(1600, 0, 0)),
    Part.LineSegment(V(1600, 0, 0), V(3000, 0, 0)),
    Part.LineSegment(V(3000, 0, 0), V(3000, 1400, 0)),
    Part.LineSegment(V(3000, 1400, 0), V(2800, 1400, 0)),
], False)
sketch13.addConstraint([
    Sketcher.Constraint("Coincident", 0, 2, 1, 1),
    Sketcher.Constraint("Coincident", 1, 2, 2, 1),
    Sketcher.Constraint("Coincident", 2, 2, 3, 1),
    Sketcher.Constraint("Coincident", 3, 2, 4, 1),
    Sketcher.Constraint("Coincident", 4, 2, 5, 1),
    Sketcher.Constraint("Coincident", 5, 2, 0, 1),
    Sketcher.Constraint("Vertical", 0),
    Sketcher.Constraint("Horizontal", 1),
    Sketcher.Constraint("Vertical", 2),
    Sketcher.Constraint("Horizontal", 3),
    Sketcher.Constraint("Vertical", 4),
    Sketcher.Constraint("Horizontal", 5),
    Sketcher.Constraint("PointOnObject", 2, 2, -1),
    Sketcher.Constraint("Equal", 1, 0),
    Sketcher.Constraint("Equal", 5, 2),
    Sketcher.Constraint("DistanceX", 1, 2, 1, 1, 1200.0),
    Sketcher.Constraint("DistanceX", 3, 1, 3, 2, 1400.0),
    Sketcher.Constraint("DistanceX", -1, 1, 0, 2, 2800.0),
])
sketch13.setExpression("Constraints[15]", "Params.sketch13_width")
sketch13.setExpression("Constraints[16]", "Params.sketch13_width2")
pad13 = body2.newObject("PartDesign::Pad", "Pad012")
pad13.Profile = sketch13
pad13.setExpression("Length", "Params.pad13_length")
pad13.Reversed = True
doc.recompute()

boolean = body.newObject("PartDesign::Boolean", "Boolean")
boolean.Type = "Fuse"
boolean.addObjects([body2])

sketch14 = body.newObject("Sketcher::SketchObject", "Sketch013")
sketch14.AttachmentSupport = (doc.getObject("XY_Plane"), [""])
sketch14.MapMode = "FlatFace"
sketch14.addGeometry([
    Part.LineSegment(V(2800, 1400, 0), V(2800, 200, 0)),
    Part.LineSegment(V(2800, 200, 0), V(1600, 200, 0)),
    Part.LineSegment(V(1600, 200, 0), V(1600, 0, 0)),
    Part.LineSegment(V(1600, 0, 0), V(3000, 0, 0)),
    Part.LineSegment(V(3000, 0, 0), V(3000, 1400, 0)),
    Part.LineSegment(V(3000, 1400, 0), V(2800, 1400, 0)),
], False)
sketch14.addConstraint([
    Sketcher.Constraint("Coincident", 0, 2, 1, 1),
    Sketcher.Constraint("Coincident", 1, 2, 2, 1),
    Sketcher.Constraint("Coincident", 2, 2, 3, 1),
    Sketcher.Constraint("Coincident", 3, 2, 4, 1),
    Sketcher.Constraint("Coincident", 4, 2, 5, 1),
    Sketcher.Constraint("Coincident", 5, 2, 0, 1),
    Sketcher.Constraint("Vertical", 0),
    Sketcher.Constraint("Horizontal", 1),
    Sketcher.Constraint("Vertical", 2),
    Sketcher.Constraint("Horizontal", 3),
    Sketcher.Constraint("Vertical", 4),
    Sketcher.Constraint("Horizontal", 5),
    Sketcher.Constraint("PointOnObject", 2, 2, -1),
    Sketcher.Constraint("Equal", 1, 0),
    Sketcher.Constraint("Equal", 5, 2),
    Sketcher.Constraint("DistanceX", 1, 2, 1, 1, 1200.0),
    Sketcher.Constraint("DistanceX", 3, 1, 3, 2, 1400.0),
    Sketcher.Constraint("DistanceX", -1, 1, 0, 2, 2800.0),
])
sketch14.setExpression("Constraints[15]", "Params.sketch14_width")
sketch14.setExpression("Constraints[16]", "Params.sketch14_width2")
pad14 = body.newObject("PartDesign::Pad", "Pad013")
pad14.Profile = sketch14
pad14.setExpression("Length", "Params.pad14_length")

sketch15 = body.newObject("Sketcher::SketchObject", "Sketch014")
sketch15.AttachmentSupport = (doc.getObject("XY_Plane"), [""])
sketch15.MapMode = "FlatFace"
sketch15.AttachmentOffset = App.Placement(V(0, 0, -200), App.Rotation())
sketch15.addGeometry([
    Part.LineSegment(V(1600, 0, 0), V(1600, 1400, 0)),
    Part.LineSegment(V(1600, 1400, 0), V(3000, 1400, 0)),
    Part.LineSegment(V(3000, 1400, 0), V(3000, 0, 0)),
    Part.LineSegment(V(3000, 0, 0), V(1600, 0, 0)),
], False)
sketch15.addConstraint([
    Sketcher.Constraint("Coincident", 0, 2, 1, 1),
    Sketcher.Constraint("Coincident", 1, 2, 2, 1),
    Sketcher.Constraint("Coincident", 2, 2, 3, 1),
    Sketcher.Constraint("Coincident", 3, 2, 0, 1),
    Sketcher.Constraint("Vertical", 0),
    Sketcher.Constraint("Horizontal", 1),
    Sketcher.Constraint("Vertical", 2),
    Sketcher.Constraint("Horizontal", 3),
    Sketcher.Constraint("PointOnObject", 2, 2, -1),
    Sketcher.Constraint("Equal", 3, 0),
    Sketcher.Constraint("DistanceX", 1, 1, 1, 2, 1400.0),
    Sketcher.Constraint("DistanceX", -1, 1, 0, 2, 1600.0),
])
sketch15.setExpression("Constraints[10]", "Params.sketch15_width")
pad15 = body.newObject("PartDesign::Pad", "Pad014")
pad15.Profile = sketch15
pad15.setExpression("Length", "Params.pad15_length")
pad15.Reversed = True

sketch16 = body.newObject("Sketcher::SketchObject", "Sketch015")
sketch16.AttachmentSupport = (doc.getObject("XY_Plane"), [""])
sketch16.MapMode = "FlatFace"
sketch16.addGeometry([
    Part.LineSegment(V(5200, 3000, 0), V(5200, 2800, 0)),
    Part.LineSegment(V(5200, 2800, 0), V(6400, 2800, 0)),
    Part.LineSegment(V(6400, 2800, 0), V(6400, 1600, 0)),
    Part.LineSegment(V(6400, 1600, 0), V(5200, 1600, 0)),
    Part.LineSegment(V(5200, 1600, 0), V(5200, 1400, 0)),
    Part.LineSegment(V(5200, 1400, 0), V(6600, 1400, 0)),
    Part.LineSegment(V(6600, 1400, 0), V(6600, 3000, 0)),
    Part.LineSegment(V(6600, 3000, 0), V(5200, 3000, 0)),
], False)
sketch16.addConstraint([
    Sketcher.Constraint("Coincident", 0, 2, 1, 1),
    Sketcher.Constraint("Coincident", 1, 2, 2, 1),
    Sketcher.Constraint("Coincident", 2, 2, 3, 1),
    Sketcher.Constraint("Coincident", 3, 2, 4, 1),
    Sketcher.Constraint("Coincident", 4, 2, 5, 1),
    Sketcher.Constraint("Coincident", 5, 2, 6, 1),
    Sketcher.Constraint("Coincident", 6, 2, 7, 1),
    Sketcher.Constraint("Coincident", 7, 2, 0, 1),
    Sketcher.Constraint("Vertical", 0),
    Sketcher.Constraint("Horizontal", 1),
    Sketcher.Constraint("Vertical", 2),
    Sketcher.Constraint("Horizontal", 3),
    Sketcher.Constraint("Vertical", 4),
    Sketcher.Constraint("Horizontal", 5),
    Sketcher.Constraint("Vertical", 6),
    Sketcher.Constraint("Horizontal", 7),
    Sketcher.Constraint("Vertical", 0, 2, 3, 2),
    Sketcher.Constraint("Equal", 3, 2),
    Sketcher.Constraint("Equal", 0, 4),
    Sketcher.Constraint("DistanceX", 1, 1, 1, 2, 1200.0),
    Sketcher.Constraint("DistanceX", 5, 1, 5, 2, 1400.0),
    Sketcher.Constraint("DistanceY", 0, 2, 0, 1, 200.0),
    Sketcher.Constraint("DistanceX", -1, 1, 0, 2, 5200.0),
    Sketcher.Constraint("DistanceY", -1, 1, 0, 2, 2800.0),
])
sketch16.setExpression("Constraints[19]", "Params.sketch16_width")
sketch16.setExpression("Constraints[20]", "Params.sketch16_width2")
sketch16.setExpression("Constraints[21]", "Params.sketch16_height")
pad16 = body.newObject("PartDesign::Pad", "Pad015")
pad16.Profile = sketch16
pad16.setExpression("Length", "Params.pad16_length")
pad16.Reversed = True

sketch17 = body.newObject("Sketcher::SketchObject", "Sketch016")
sketch17.AttachmentSupport = (doc.getObject("XY_Plane"), [""])
sketch17.MapMode = "FlatFace"
sketch17.AttachmentOffset = App.Placement(V(0, 0, -800), App.Rotation())
sketch17.addGeometry([
    Part.LineSegment(V(5200, 1400, 0), V(5200, 3000, 0)),
    Part.LineSegment(V(5200, 3000, 0), V(6600, 3000, 0)),
    Part.LineSegment(V(6600, 3000, 0), V(6600, 1400, 0)),
    Part.LineSegment(V(6600, 1400, 0), V(5200, 1400, 0)),
], False)
sketch17.addConstraint([
    Sketcher.Constraint("Coincident", 0, 2, 1, 1),
    Sketcher.Constraint("Coincident", 1, 2, 2, 1),
    Sketcher.Constraint("Coincident", 2, 2, 3, 1),
    Sketcher.Constraint("Coincident", 3, 2, 0, 1),
    Sketcher.Constraint("Vertical", 0),
    Sketcher.Constraint("Horizontal", 1),
    Sketcher.Constraint("Vertical", 2),
    Sketcher.Constraint("Horizontal", 3),
    Sketcher.Constraint("DistanceX", 1, 1, 1, 2, 1400.0),
    Sketcher.Constraint("DistanceY", 0, 1, 0, 2, 1600.0),
    Sketcher.Constraint("DistanceX", -1, 1, 0, 2, 5200.0),
    Sketcher.Constraint("DistanceY", -1, 1, 0, 2, 3000.0),
])
sketch17.setExpression("Constraints[8]", "Params.sketch17_width")
sketch17.setExpression("Constraints[9]", "Params.sketch17_height")
pad17 = body.newObject("PartDesign::Pad", "Pad016")
pad17.Profile = sketch17
pad17.setExpression("Length", "Params.pad17_length")
pad17.Reversed = True

sketch18 = body.newObject("Sketcher::SketchObject", "Sketch017")
sketch18.AttachmentSupport = (doc.getObject("XY_Plane"), [""])
sketch18.MapMode = "FlatFace"
sketch18.addGeometry([
    Part.LineSegment(V(-2600, 4000, 0), V(-2600, -2450, 0)),
    Part.LineSegment(V(-2600, -2450, 0), V(7100, -2450, 0)),
    Part.LineSegment(V(7100, -2450, 0), V(7100, 4000, 0)),
    Part.LineSegment(V(7100, 4000, 0), V(-2600, 4000, 0)),
    Part.LineSegment(V(3000, 0, 0), V(0, 0, 0)),
    Part.LineSegment(V(0, 0, 0), V(0, 3000, 0)),
    Part.LineSegment(V(0, 3000, 0), V(6600, 3000, 0)),
    Part.LineSegment(V(6600, 3000, 0), V(6600, 1400, 0)),
    Part.LineSegment(V(6600, 1400, 0), V(3000, 1400, 0)),
    Part.LineSegment(V(3000, 1400, 0), V(3000, 0, 0)),
], False)
sketch18.addConstraint([
    Sketcher.Constraint("Coincident", 0, 2, 1, 1),
    Sketcher.Constraint("Coincident", 1, 2, 2, 1),
    Sketcher.Constraint("Coincident", 2, 2, 3, 1),
    Sketcher.Constraint("Coincident", 3, 2, 0, 1),
    Sketcher.Constraint("Coincident", 4, 2, 5, 1),
    Sketcher.Constraint("Coincident", 5, 2, 6, 1),
    Sketcher.Constraint("Coincident", 6, 2, 7, 1),
    Sketcher.Constraint("Coincident", 7, 2, 8, 1),
    Sketcher.Constraint("Coincident", 8, 2, 9, 1),
    Sketcher.Constraint("Coincident", 9, 2, 4, 1),
    Sketcher.Constraint("Vertical", 0),
    Sketcher.Constraint("Horizontal", 1),
    Sketcher.Constraint("Vertical", 2),
    Sketcher.Constraint("Horizontal", 3),
    Sketcher.Constraint("Horizontal", 4),
    Sketcher.Constraint("Vertical", 5),
    Sketcher.Constraint("Horizontal", 6),
    Sketcher.Constraint("Vertical", 7),
    Sketcher.Constraint("Horizontal", 8),
    Sketcher.Constraint("Vertical", 9),
    Sketcher.Constraint("Coincident", 4, 2, -1, 1),
    Sketcher.Constraint("Equal", 4, 5),
    Sketcher.Constraint("DistanceX", 1, 1, 1, 2, 9700.0),
    Sketcher.Constraint("DistanceX", 4, 2, 4, 1, 3000.0),
    Sketcher.Constraint("DistanceX", 6, 1, 6, 2, 6600.0),
    Sketcher.Constraint("DistanceY", 0, 2, 0, 1, 6450.0),
    Sketcher.Constraint("DistanceY", 7, 2, 7, 1, 1600.0),
    Sketcher.Constraint("DistanceX", 0, 2, -1, 1, 2600.0),
    Sketcher.Constraint("DistanceY", 0, 2, -1, 1, 2450.0),
])
sketch18.setExpression("Constraints[22]", "Params.sketch18_width")
sketch18.setExpression("Constraints[23]", "Params.sketch18_width2")
sketch18.setExpression("Constraints[24]", "Params.sketch18_width3")
sketch18.setExpression("Constraints[25]", "Params.sketch18_height")
sketch18.setExpression("Constraints[26]", "Params.sketch18_height2")
pad18 = body.newObject("PartDesign::Pad", "Pad017")
pad18.Profile = sketch18
pad18.setExpression("Length", "Params.pad18_length")
pad18.Reversed = True

doc.recompute()
